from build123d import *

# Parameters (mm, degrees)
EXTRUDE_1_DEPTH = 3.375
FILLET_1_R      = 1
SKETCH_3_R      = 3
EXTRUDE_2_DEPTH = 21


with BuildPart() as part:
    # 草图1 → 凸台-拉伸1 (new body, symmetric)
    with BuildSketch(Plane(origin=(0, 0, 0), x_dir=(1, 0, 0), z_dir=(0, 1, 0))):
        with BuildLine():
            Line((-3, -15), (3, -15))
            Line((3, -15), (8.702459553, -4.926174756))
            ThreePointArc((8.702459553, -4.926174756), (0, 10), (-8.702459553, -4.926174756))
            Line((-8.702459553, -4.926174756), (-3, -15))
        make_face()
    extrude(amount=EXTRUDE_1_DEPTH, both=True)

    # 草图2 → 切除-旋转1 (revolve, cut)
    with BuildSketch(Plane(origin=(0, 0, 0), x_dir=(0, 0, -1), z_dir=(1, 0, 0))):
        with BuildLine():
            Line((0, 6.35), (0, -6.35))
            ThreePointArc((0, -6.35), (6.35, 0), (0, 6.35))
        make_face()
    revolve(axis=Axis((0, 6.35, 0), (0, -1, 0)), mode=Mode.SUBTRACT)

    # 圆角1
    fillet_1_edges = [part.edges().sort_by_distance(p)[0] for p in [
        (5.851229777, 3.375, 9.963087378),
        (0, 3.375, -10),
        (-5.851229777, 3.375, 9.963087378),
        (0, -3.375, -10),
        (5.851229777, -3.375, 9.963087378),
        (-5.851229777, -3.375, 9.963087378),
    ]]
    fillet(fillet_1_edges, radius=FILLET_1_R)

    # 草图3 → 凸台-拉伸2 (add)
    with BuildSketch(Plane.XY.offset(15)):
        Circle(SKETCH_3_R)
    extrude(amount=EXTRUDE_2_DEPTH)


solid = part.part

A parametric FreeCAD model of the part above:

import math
import FreeCAD as App
import Part
import Sketcher

V = App.Vector


def edges_at(feature, points):
    """Names of the edges that pass closest to the given points."""
    edges = feature.Shape.Edges
    near = lambda p: min(range(len(edges)), key=lambda i: edges[i].distToShape(Part.Vertex(*p))[0])
    return sorted({f"Edge{near(p) + 1}" for p in points})

doc = App.newDocument("Part")
body = doc.addObject("PartDesign::Body", "Body")

sketch1 = body.newObject("Sketcher::SketchObject", "Sketch")
sketch1.AttachmentSupport = (doc.getObject("XZ_Plane"), [""])
sketch1.MapMode = "FlatFace"
sketch1.addGeometry(Part.LineSegment(V(-3, 15, 0), V(3, 15, 0)), False)
sketch1.addGeometry(Part.LineSegment(V(3, 15, 0), V(9, 5, 0)), False)
sketch1.addGeometry(Part.ArcOfCircle(Part.Circle(V(0, 0, 0), V(0, 0, 1), 10), math.radians(150), math.radians(390)), False)
sketch1.addGeometry(Part.LineSegment(V(-9, 5, 0), V(-3, 15, 0)), False)
sketch1.addConstraint(Sketcher.Constraint("Coincident", 0, 2, 1, 1))
sketch1.addConstraint(Sketcher.Constraint("Tangent", 1, 2, 2, 2))
sketch1.addConstraint(Sketcher.Constraint("Tangent", 2, 1, 3, 1))
sketch1.addConstraint(Sketcher.Constraint("Coincident", 3, 2, 0, 1))
sketch1.addConstraint(Sketcher.Constraint("Horizontal", 0))
sketch1.addConstraint(Sketcher.Constraint("Coincident", 2, 3, -1, 1))
sketch1.addConstraint(Sketcher.Constraint("Horizontal", 1, 2, 2, 1))
sketch1.addConstraint(Sketcher.Constraint("Radius", 2, 10.0))
sketch1.addConstraint(Sketcher.Constraint("DistanceX", 0, 1, 0, 2, 6.0))
sketch1.addConstraint(Sketcher.Constraint("DistanceY", -1, 1, 0, 2, 15.0))
pad1 = body.newObject("PartDesign::Pad", "Pad")
pad1.Profile = sketch1
pad1.Length = 6.75
pad1.Midplane = True

sketch2 = body.newObject("Sketcher::SketchObject", "Sketch001")
sketch2.AttachmentSupport = (doc.getObject("YZ_Plane"), [""])
sketch2.MapMode = "FlatFace"
sketch2.addGeometry(Part.LineSegment(V(6, 0, 0), V(-6, 0, 0)), False)
sketch2.addGeometry(Part.ArcOfCircle(Part.Circle(V(0, 0, 0), V(0, 0, 1), 6), math.radians(180), math.radians(360)), False)
sketch2.addConstraint(Sketcher.Constraint("Coincident", 0, 1, 1, 2))
sketch2.addConstraint(Sketcher.Constraint("Coincident", 1, 1, 0, 2))
sketch2.addConstraint(Sketcher.Constraint("Horizontal", 0))
sketch2.addConstraint(Sketcher.Constraint("Coincident", 1, 3, -1, 1))
sketch2.addConstraint(Sketcher.Constraint("PointOnObject", 0, 1, -1))
sketch2.addConstraint(Sketcher.Constraint("Radius", 1, 6.35))
groove = body.newObject("PartDesign::Groove", "Groove")
groove.Profile = sketch2
groove.ReferenceAxis = (sketch2, ["H_Axis"])
groove.Angle = 360
doc.recompute()

fillet = body.newObject("PartDesign::Fillet", "Fillet")
fillet.Base = (groove, edges_at(groove, [
    (5.851, 3.375, 9.963),
    (0, 3.375, -10),
    (-5.851, 3.375, 9.963),
    (0, -3.375, -10),
    (5.851, -3.375, 9.963),
    (-5.851, -3.375, 9.963),
]))
fillet.Radius = 1

sketch3 = body.newObject("Sketcher::SketchObject", "Sketch002")
sketch3.AttachmentSupport = (doc.getObject("XY_Plane"), [""])
sketch3.MapMode = "FlatFace"
sketch3.AttachmentOffset = App.Placement(V(0, 0, 15), App.Rotation())
sketch3.addGeometry(Part.Circle(V(0, 0, 0), V(0, 0, 1), 3), False)
sketch3.addConstraint(Sketcher.Constraint("Coincident", 0, 3, -1, 1))
sketch3.addConstraint(Sketcher.Constraint("Diameter", 0, 6.0))
pad2 = body.newObject("PartDesign::Pad", "Pad001")
pad2.Profile = sketch3
pad2.Length = 21

doc.recompute()
